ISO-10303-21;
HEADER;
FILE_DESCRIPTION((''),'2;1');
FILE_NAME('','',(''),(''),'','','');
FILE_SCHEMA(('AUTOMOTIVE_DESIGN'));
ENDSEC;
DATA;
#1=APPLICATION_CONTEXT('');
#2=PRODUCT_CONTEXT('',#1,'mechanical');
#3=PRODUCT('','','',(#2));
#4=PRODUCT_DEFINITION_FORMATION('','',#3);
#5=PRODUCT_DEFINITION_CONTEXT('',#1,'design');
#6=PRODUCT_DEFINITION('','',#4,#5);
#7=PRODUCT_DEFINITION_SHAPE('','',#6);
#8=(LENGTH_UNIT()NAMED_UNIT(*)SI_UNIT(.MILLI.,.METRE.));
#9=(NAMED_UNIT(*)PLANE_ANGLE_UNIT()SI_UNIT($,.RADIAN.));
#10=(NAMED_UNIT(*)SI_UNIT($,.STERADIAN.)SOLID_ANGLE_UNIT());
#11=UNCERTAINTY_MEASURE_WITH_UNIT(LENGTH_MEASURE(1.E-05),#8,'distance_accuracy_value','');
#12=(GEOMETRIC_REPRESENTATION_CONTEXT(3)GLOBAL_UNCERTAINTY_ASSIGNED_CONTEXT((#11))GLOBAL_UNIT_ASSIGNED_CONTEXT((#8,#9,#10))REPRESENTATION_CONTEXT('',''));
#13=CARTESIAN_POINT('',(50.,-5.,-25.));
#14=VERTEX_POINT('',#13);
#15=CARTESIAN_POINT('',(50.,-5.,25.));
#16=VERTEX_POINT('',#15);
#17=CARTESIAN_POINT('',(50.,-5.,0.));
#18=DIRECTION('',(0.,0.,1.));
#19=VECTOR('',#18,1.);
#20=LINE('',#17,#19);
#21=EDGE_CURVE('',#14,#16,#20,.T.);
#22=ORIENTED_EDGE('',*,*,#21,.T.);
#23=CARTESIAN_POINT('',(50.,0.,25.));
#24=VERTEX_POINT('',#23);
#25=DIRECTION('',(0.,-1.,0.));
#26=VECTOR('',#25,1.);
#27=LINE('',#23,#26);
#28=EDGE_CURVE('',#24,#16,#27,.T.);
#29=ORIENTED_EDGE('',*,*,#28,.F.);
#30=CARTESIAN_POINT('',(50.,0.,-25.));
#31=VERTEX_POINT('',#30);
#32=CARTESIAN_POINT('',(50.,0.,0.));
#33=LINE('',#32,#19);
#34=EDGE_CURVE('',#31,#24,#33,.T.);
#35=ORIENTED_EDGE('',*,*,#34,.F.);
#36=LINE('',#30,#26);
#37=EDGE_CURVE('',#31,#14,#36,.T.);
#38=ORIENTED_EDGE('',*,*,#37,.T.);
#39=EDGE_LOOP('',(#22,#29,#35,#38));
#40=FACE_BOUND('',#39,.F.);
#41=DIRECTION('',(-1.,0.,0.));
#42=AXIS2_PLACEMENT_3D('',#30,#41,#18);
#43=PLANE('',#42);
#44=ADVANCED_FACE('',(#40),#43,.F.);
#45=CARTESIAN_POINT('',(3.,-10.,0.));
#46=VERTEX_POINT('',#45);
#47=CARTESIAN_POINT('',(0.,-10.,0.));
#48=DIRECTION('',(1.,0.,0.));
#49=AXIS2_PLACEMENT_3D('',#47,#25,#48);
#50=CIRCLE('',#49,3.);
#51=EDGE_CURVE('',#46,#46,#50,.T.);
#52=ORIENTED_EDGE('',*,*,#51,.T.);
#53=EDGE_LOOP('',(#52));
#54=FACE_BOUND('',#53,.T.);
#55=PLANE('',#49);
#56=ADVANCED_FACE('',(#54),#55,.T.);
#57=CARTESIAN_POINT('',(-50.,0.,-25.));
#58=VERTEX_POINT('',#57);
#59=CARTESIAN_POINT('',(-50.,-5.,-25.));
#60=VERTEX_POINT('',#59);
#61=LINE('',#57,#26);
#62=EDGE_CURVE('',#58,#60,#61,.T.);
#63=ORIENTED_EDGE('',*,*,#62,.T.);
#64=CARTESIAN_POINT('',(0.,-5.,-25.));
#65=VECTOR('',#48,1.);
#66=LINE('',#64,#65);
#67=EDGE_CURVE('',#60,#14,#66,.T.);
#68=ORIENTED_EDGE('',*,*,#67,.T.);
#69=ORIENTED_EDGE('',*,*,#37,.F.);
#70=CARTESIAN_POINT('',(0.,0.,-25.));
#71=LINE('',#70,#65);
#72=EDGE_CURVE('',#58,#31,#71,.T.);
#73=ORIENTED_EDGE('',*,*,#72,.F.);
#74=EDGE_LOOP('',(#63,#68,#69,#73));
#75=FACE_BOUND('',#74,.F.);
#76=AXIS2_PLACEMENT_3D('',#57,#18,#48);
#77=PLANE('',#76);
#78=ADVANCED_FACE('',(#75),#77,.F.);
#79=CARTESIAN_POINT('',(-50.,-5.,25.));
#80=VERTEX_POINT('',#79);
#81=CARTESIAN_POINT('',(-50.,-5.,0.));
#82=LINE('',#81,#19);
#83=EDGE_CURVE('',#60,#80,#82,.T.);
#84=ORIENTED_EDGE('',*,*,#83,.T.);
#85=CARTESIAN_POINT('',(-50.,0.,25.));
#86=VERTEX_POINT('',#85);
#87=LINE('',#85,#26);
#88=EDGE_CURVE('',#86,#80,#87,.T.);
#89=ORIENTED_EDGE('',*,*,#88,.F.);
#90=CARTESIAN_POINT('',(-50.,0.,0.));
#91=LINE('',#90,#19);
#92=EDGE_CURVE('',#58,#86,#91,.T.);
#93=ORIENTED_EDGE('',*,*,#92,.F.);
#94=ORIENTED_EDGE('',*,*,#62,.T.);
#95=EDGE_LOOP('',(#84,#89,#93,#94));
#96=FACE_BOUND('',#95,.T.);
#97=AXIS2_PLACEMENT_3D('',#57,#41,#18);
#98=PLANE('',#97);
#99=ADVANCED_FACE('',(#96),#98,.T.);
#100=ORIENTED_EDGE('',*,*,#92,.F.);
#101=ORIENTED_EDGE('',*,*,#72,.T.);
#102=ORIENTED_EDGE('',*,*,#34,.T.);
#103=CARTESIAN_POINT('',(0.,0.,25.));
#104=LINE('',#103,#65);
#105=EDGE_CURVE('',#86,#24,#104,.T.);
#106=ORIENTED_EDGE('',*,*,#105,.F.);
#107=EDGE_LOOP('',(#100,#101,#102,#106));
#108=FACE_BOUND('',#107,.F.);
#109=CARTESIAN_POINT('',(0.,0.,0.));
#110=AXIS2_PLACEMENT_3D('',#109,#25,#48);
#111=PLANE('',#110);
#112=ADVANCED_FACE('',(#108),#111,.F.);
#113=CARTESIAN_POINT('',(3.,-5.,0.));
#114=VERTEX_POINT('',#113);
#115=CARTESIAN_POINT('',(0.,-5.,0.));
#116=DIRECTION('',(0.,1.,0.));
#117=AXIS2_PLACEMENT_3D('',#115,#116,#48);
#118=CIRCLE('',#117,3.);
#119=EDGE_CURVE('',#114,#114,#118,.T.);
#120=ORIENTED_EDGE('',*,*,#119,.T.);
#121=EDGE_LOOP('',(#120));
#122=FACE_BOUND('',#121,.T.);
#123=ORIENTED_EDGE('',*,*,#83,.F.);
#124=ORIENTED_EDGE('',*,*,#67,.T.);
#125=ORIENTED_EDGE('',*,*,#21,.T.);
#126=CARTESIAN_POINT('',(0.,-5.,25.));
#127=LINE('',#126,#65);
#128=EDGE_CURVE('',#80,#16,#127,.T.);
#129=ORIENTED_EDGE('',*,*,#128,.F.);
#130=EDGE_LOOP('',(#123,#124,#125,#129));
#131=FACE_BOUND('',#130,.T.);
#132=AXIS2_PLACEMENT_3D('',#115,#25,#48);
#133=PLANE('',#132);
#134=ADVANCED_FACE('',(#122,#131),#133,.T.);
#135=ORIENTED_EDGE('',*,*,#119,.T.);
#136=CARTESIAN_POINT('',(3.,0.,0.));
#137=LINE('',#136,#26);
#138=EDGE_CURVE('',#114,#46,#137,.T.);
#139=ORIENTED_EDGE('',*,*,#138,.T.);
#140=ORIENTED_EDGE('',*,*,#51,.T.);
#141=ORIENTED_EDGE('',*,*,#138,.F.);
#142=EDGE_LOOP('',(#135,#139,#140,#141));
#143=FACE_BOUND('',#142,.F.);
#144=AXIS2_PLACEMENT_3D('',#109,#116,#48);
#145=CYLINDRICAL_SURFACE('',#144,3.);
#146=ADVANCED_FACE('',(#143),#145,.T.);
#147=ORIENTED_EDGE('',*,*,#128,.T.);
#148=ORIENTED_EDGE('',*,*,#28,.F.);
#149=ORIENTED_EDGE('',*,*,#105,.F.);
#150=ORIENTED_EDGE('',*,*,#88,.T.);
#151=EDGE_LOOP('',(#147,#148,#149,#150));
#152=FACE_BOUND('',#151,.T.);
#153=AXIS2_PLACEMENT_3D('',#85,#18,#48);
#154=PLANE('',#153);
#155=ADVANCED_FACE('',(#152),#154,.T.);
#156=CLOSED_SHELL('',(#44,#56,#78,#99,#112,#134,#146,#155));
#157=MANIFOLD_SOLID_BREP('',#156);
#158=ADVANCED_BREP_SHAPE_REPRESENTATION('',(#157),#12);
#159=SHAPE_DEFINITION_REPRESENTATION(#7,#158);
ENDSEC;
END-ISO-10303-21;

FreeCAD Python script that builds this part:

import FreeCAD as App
import Part
import Sketcher
from FreeCAD import Vector


def add_polygon(sketch, points):
    """Adds a closed chain of lines whose ends are joined by coincident constraints."""
    first, n = sketch.GeometryCount, len(points)
    for a, b in zip(points, points[1:] + points[:1]):
        sketch.addGeometry(Part.LineSegment(App.Vector(*a, 0), App.Vector(*b, 0)), False)
    for i in range(n):
        sketch.addConstraint(Sketcher.Constraint("Coincident", first + i, 2, first + (i + 1) % n, 1))

doc = App.newDocument("Part")
body = doc.addObject("PartDesign::Body", "Body")

# Sketch on XZ plane
sketch1 = body.newObject("Sketcher::SketchObject", "Sketch")
sketch1.AttachmentSupport = (doc.getObject("XZ_Plane"), [""])
sketch1.MapMode = "FlatFace"
add_polygon(sketch1, [(-50, 25), (-50, -25), (50, -25), (50, 25)])  # lines 0-3
sketch1.addConstraint([
    Sketcher.Constraint("Vertical", 0),
    Sketcher.Constraint("Horizontal", 1),
    Sketcher.Constraint("Vertical", 2),
    Sketcher.Constraint("Horizontal", 3),
    Sketcher.Constraint("Symmetric", 0, 2, 2, 2, -1, 1),
    Sketcher.Constraint("DistanceX", 1, 1, 1, 2, 100.0),
    Sketcher.Constraint("DistanceY", 0, 2, 0, 1, 50.0),
])
pad1 = body.newObject("PartDesign::Pad", "Pad")
pad1.Profile = sketch1
pad1.Length = 5

# Sketch on XZ plane
sketch2 = body.newObject("Sketcher::SketchObject", "Sketch001")
sketch2.AttachmentSupport = (doc.getObject("XZ_Plane"), [""])
sketch2.MapMode = "FlatFace"
sketch2.addGeometry(Part.Circle(Vector(0, 0, 0), Vector(0, 0, 1), 3), False)
sketch2.addConstraint([
    Sketcher.Constraint("Coincident", 0, 3, -1, 1),
    Sketcher.Constraint("Diameter", 0, 6.0),
])
pad2 = body.newObject("PartDesign::Pad", "Pad001")
pad2.Profile = sketch2
pad2.Length = 10

doc.recompute()
